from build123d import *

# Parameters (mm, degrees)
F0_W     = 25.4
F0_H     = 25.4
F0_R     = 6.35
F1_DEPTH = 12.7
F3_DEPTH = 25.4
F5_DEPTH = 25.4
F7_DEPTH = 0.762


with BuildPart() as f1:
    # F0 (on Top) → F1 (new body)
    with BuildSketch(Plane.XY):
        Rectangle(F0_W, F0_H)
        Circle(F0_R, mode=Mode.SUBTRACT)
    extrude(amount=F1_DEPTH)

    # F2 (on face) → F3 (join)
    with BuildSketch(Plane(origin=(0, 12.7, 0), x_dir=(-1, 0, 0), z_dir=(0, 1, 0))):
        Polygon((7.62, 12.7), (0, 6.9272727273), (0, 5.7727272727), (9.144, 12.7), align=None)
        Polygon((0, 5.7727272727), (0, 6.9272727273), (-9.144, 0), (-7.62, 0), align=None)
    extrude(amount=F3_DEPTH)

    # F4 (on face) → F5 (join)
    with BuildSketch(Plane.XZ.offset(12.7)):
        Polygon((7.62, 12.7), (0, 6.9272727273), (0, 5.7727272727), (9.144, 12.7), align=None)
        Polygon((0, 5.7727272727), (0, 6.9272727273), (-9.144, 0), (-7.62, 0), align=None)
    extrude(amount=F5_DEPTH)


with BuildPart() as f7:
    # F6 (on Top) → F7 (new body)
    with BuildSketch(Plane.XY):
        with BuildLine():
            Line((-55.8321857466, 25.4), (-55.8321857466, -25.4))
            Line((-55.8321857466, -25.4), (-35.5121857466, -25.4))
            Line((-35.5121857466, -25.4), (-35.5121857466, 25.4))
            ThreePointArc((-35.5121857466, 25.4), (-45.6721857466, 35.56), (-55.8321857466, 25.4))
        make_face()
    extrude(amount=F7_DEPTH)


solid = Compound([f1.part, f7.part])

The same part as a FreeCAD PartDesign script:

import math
import FreeCAD as App
import Part
import Sketcher
Q = App.Units.Quantity

doc = App.newDocument("Part")
body = doc.addObject("PartDesign::Body", "Body")

sketch1 = body.newObject("Sketcher::SketchObject", "Sketch")
sketch1.AttachmentSupport = (doc.getObject("XY_Plane"), [""])
sketch1.MapMode = "FlatFace"
sketch1.addGeometry([
    Part.LineSegment(App.Vector(-13, 13, 0), App.Vector(-13, -13, 0)),
    Part.LineSegment(App.Vector(-13, -13, 0), App.Vector(13, -13, 0)),
    Part.LineSegment(App.Vector(13, -13, 0), App.Vector(13, 13, 0)),
    Part.LineSegment(App.Vector(13, 13, 0), App.Vector(-13, 13, 0)),
    Part.Circle(App.Vector(0, 0, 0), App.Vector(0, 0, 1), 6),
], False)
sketch1.addConstraint([
    Sketcher.Constraint("Coincident", 0, 2, 1, 1),
    Sketcher.Constraint("Coincident", 1, 2, 2, 1),
    Sketcher.Constraint("Coincident", 2, 2, 3, 1),
    Sketcher.Constraint("Coincident", 3, 2, 0, 1),
    Sketcher.Constraint("Vertical", 0),
    Sketcher.Constraint("Horizontal", 1),
    Sketcher.Constraint("Vertical", 2),
    Sketcher.Constraint("Horizontal", 3),
    Sketcher.Constraint("Coincident", 4, 3, -1, 1),
    Sketcher.Constraint("Symmetric", 0, 2, 2, 2, -1, 1),
    Sketcher.Constraint("Equal", 3, 0),
    Sketcher.Constraint("Diameter", 4, Q("0.5 in")),
    Sketcher.Constraint("DistanceX", 1, 1, 1, 2, Q("1 in")),
])
pad1 = body.newObject("PartDesign::Pad", "Pad")
pad1.Profile = sketch1
pad1.Length = Q("0.5 in")

sketch2 = body.newObject("Sketcher::SketchObject", "Sketch001")
sketch2.AttachmentSupport = (doc.getObject("XZ_Plane"), [""])
sketch2.MapMode = "FlatFace"
sketch2.AttachmentOffset = App.Placement(App.Vector(0, 0, -0.5 * 25.4), App.Rotation())
sketch2.addGeometry([
    Part.LineSegment(App.Vector(-7.6, 12.7, 0), App.Vector(0, 6.9, 0)),
    Part.LineSegment(App.Vector(0, 6.9, 0), App.Vector(9.1, 0, 0)),
    Part.LineSegment(App.Vector(9.1, 0, 0), App.Vector(7.6, 0, 0)),
    Part.LineSegment(App.Vector(7.6, 0, 0), App.Vector(0, 5.8, 0)),
    Part.LineSegment(App.Vector(0, 5.8, 0), App.Vector(-9.1, 12.7, 0)),
    Part.LineSegment(App.Vector(-9.1, 12.7, 0), App.Vector(-7.6, 12.7, 0)),
], False)
sketch2.addConstraint([
    Sketcher.Constraint("Coincident", 0, 2, 1, 1),
    Sketcher.Constraint("Coincident", 1, 2, 2, 1),
    Sketcher.Constraint("Coincident", 2, 2, 3, 1),
    Sketcher.Constraint("Coincident", 3, 2, 4, 1),
    Sketcher.Constraint("Coincident", 4, 2, 5, 1),
    Sketcher.Constraint("Coincident", 5, 2, 0, 1),
    Sketcher.Constraint("Horizontal", 2),
    Sketcher.Constraint("Horizontal", 5),
    Sketcher.Constraint("PointOnObject", 0, 2, -2),
    Sketcher.Constraint("PointOnObject", 1, 2, -1),
    Sketcher.Constraint("PointOnObject", 3, 2, -2),
    Sketcher.Constraint("Parallel", 0, 1),
    Sketcher.Constraint("Parallel", 1, 3),
    Sketcher.Constraint("Parallel", 3, 4),
    Sketcher.Constraint("Equal", 0, 3),
    Sketcher.Constraint("DistanceX", 2, 2, 2, 1, Q("0.06 in")),
    Sketcher.Constraint("DistanceX", -1, 1, 2, 2, Q("0.3 in")),
    Sketcher.Constraint("DistanceY", -1, 1, 4, 2, Q("0.5 in")),
])
pad2 = body.newObject("PartDesign::Pad", "Pad001")
pad2.Profile = sketch2
pad2.Length = Q("1 in")
pad2.Reversed = True

sketch3 = body.newObject("Sketcher::SketchObject", "Sketch002")
sketch3.AttachmentSupport = (doc.getObject("XZ_Plane"), [""])
sketch3.MapMode = "FlatFace"
sketch3.AttachmentOffset = App.Placement(App.Vector(0, 0, 0.5 * 25.4), App.Rotation())
sketch3.addGeometry([
    Part.LineSegment(App.Vector(7.6, 12.7, 0), App.Vector(0, 6.9, 0)),
    Part.LineSegment(App.Vector(0, 6.9, 0), App.Vector(-9.1, 0, 0)),
    Part.LineSegment(App.Vector(-9.1, 0, 0), App.Vector(-7.6, 0, 0)),
    Part.LineSegment(App.Vector(-7.6, 0, 0), App.Vector(0, 5.8, 0)),
    Part.LineSegment(App.Vector(0, 5.8, 0), App.Vector(9.1, 12.7, 0)),
    Part.LineSegment(App.Vector(9.1, 12.7, 0), App.Vector(7.6, 12.7, 0)),
], False)
sketch3.addConstraint([
    Sketcher.Constraint("Coincident", 0, 2, 1, 1),
    Sketcher.Constraint("Coincident", 1, 2, 2, 1),
    Sketcher.Constraint("Coincident", 2, 2, 3, 1),
    Sketcher.Constraint("Coincident", 3, 2, 4, 1),
    Sketcher.Constraint("Coincident", 4, 2, 5, 1),
    Sketcher.Constraint("Coincident", 5, 2, 0, 1),
    Sketcher.Constraint("Horizontal", 2),
    Sketcher.Constraint("Horizontal", 5),
    Sketcher.Constraint("PointOnObject", 0, 2, -2),
    Sketcher.Constraint("PointOnObject", 1, 2, -1),
    Sketcher.Constraint("PointOnObject", 3, 2, -2),
    Sketcher.Constraint("Parallel", 0, 1),
    Sketcher.Constraint("Parallel", 1, 3),
    Sketcher.Constraint("Parallel", 3, 4),
    Sketcher.Constraint("Equal", 0, 3),
    Sketcher.Constraint("DistanceX", 2, 1, 2, 2, Q("0.06 in")),
    Sketcher.Constraint("DistanceX", 2, 2, -1, 1, Q("0.3 in")),
    Sketcher.Constraint("DistanceY", -1, 1, 4, 2, Q("0.5 in")),
])
pad3 = body.newObject("PartDesign::Pad", "Pad002")
pad3.Profile = sketch3
pad3.Length = Q("1 in")
body2 = doc.addObject("PartDesign::Body", "Body001")

sketch4 = body2.newObject("Sketcher::SketchObject", "Sketch003")
sketch4.AttachmentSupport = (doc.getObject("XY_Plane001"), [""])
sketch4.MapMode = "FlatFace"
sketch4.addGeometry([
    Part.LineSegment(App.Vector(-56, 25, 0), App.Vector(-56, -25, 0)),
    Part.LineSegment(App.Vector(-56, -25, 0), App.Vector(-36, -25, 0)),
    Part.LineSegment(App.Vector(-36, -25, 0), App.Vector(-36, 25, 0)),
    Part.ArcOfCircle(Part.Circle(App.Vector(-46, 25, 0), App.Vector(0, 0, 1), 10), math.radians(0), math.radians(180)),
], False)
sketch4.addConstraint([
    Sketcher.Constraint("Coincident", 0, 2, 1, 1),
    Sketcher.Constraint("Coincident", 1, 2, 2, 1),
    Sketcher.Constraint("Tangent", 2, 2, 3, 1),
    Sketcher.Constraint("Tangent", 3, 2, 0, 1),
    Sketcher.Constraint("Vertical", 0),
    Sketcher.Constraint("Horizontal", 1),
    Sketcher.Constraint("Vertical", 2),
    Sketcher.Constraint("Radius", 3, Q("0.4 in")),
    Sketcher.Constraint("DistanceY", 0, 2, 0, 1, Q("2 in")),
    Sketcher.Constraint("DistanceY", -1, 1, 3, 3, Q("1 in")),
    Sketcher.Constraint("DistanceX", 3, 3, -1, 1, 45.672186),
])
pad4 = body2.newObject("PartDesign::Pad", "Pad003")
pad4.Profile = sketch4
pad4.Length = Q("0.03 in")

doc.recompute()
